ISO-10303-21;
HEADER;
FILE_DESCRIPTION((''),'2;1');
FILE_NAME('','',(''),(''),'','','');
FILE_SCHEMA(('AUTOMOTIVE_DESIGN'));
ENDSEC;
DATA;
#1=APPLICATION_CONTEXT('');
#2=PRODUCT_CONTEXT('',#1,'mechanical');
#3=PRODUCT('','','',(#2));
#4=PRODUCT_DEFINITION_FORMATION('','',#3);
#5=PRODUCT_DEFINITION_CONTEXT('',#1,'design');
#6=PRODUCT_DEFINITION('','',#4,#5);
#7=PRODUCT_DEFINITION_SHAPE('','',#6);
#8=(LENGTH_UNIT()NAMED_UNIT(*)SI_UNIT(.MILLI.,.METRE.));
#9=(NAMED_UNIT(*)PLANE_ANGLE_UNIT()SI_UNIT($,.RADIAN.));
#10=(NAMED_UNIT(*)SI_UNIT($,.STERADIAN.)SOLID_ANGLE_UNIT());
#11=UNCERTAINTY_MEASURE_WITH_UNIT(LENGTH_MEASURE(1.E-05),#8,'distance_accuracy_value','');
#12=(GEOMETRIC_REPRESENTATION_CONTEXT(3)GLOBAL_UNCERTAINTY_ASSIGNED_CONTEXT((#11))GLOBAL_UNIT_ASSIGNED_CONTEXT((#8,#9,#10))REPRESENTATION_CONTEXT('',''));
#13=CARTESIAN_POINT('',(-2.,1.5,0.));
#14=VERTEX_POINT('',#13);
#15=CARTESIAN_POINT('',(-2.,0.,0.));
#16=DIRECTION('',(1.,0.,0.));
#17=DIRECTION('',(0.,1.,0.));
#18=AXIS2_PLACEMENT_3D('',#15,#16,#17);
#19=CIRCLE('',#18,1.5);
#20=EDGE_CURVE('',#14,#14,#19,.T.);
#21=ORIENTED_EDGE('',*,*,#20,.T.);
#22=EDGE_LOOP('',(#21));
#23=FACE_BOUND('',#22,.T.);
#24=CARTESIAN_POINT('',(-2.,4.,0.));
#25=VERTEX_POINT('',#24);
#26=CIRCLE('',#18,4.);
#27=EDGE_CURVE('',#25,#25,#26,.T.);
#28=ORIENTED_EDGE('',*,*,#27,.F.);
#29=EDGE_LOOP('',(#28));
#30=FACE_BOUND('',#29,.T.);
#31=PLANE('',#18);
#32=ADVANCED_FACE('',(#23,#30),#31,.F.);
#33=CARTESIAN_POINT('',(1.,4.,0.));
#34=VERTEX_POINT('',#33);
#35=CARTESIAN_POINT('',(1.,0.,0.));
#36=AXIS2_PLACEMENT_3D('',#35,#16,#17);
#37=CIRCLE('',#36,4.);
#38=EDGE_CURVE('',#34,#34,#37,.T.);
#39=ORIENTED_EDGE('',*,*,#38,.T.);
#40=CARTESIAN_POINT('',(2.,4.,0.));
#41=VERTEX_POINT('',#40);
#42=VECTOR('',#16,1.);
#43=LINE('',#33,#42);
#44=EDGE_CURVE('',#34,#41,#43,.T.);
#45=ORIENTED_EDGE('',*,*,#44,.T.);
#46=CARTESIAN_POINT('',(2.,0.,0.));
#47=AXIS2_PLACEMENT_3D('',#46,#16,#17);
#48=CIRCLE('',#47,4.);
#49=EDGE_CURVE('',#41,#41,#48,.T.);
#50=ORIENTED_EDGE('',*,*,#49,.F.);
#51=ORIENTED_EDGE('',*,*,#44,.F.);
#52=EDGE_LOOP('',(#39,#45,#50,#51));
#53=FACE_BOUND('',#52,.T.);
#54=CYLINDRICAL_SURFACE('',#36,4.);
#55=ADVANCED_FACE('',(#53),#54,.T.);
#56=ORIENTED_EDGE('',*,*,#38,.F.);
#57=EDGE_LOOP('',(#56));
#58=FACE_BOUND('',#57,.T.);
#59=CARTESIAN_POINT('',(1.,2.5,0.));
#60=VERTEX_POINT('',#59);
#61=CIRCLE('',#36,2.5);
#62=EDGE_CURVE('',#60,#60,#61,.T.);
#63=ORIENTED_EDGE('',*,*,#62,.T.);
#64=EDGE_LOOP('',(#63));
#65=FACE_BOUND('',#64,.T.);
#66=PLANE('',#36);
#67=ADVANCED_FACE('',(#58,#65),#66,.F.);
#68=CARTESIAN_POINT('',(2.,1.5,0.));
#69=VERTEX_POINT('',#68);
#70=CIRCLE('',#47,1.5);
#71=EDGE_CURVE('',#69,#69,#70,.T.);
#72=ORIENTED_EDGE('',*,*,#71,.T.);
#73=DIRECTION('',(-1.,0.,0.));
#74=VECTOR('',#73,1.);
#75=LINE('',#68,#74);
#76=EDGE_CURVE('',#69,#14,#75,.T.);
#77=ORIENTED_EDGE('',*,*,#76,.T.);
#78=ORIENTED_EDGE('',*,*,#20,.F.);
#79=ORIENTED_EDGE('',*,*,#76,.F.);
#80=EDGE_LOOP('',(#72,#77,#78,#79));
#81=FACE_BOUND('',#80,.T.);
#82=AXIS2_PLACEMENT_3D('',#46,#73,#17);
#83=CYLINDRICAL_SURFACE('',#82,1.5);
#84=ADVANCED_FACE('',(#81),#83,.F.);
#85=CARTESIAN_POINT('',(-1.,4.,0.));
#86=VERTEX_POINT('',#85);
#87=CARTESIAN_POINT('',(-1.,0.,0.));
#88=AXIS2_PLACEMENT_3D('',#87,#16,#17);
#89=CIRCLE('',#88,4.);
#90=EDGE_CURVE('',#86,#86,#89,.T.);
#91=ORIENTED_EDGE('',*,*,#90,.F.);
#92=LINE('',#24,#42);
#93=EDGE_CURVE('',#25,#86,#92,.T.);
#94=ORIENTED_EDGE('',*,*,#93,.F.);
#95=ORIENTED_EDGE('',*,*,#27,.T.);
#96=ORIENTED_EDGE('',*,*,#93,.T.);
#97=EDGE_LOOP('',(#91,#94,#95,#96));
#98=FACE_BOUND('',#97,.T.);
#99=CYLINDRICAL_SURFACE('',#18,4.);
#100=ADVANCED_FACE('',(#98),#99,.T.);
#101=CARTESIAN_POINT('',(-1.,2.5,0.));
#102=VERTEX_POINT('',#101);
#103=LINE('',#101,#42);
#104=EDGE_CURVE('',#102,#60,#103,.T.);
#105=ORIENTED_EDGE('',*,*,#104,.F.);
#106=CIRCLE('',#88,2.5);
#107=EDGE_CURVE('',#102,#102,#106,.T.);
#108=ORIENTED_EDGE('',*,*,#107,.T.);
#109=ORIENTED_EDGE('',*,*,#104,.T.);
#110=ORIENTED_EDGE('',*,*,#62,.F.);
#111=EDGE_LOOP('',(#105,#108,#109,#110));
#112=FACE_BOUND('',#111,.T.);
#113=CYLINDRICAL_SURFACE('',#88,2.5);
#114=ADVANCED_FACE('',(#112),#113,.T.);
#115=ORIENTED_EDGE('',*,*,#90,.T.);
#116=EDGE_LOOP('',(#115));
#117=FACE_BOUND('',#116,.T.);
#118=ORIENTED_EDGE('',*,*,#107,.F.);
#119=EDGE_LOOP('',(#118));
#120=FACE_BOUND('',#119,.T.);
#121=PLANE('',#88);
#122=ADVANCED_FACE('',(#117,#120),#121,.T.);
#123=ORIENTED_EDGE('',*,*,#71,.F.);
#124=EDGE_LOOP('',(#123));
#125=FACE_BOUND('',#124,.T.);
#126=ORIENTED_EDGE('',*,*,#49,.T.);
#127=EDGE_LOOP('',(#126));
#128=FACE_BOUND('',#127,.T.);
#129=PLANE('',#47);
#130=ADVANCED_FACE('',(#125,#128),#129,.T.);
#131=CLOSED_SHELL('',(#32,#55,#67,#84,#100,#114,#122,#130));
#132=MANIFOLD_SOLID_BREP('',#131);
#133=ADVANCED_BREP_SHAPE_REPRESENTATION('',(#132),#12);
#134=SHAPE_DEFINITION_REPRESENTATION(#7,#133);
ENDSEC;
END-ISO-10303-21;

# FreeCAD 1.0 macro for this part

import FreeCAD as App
import Part
import Sketcher
Q = App.Units.Quantity

doc = App.newDocument("Part")
body = doc.addObject("PartDesign::Body", "Body")

sketch1 = doc.addObject("Sketcher::SketchObject", "Sketch")
body.addObject(sketch1)
sketch1.AttachmentSupport = (doc.XY_Plane, [""])
sketch1.MapMode = "FlatFace"
sketch1.addGeometry(Part.LineSegment(App.Vector(-1, 4, 0), App.Vector(-2, 4, 0)), False)
sketch1.addGeometry(Part.LineSegment(App.Vector(-2, 4, 0), App.Vector(-2, 1.5, 0)), False)
sketch1.addGeometry(Part.LineSegment(App.Vector(-2, 1.5, 0), App.Vector(2, 1.5, 0)), False)
sketch1.addGeometry(Part.LineSegment(App.Vector(2, 1.5, 0), App.Vector(2, 4, 0)), False)
sketch1.addGeometry(Part.LineSegment(App.Vector(2, 4, 0), App.Vector(1, 4, 0)), False)
sketch1.addGeometry(Part.LineSegment(App.Vector(1, 4, 0), App.Vector(1, 2.5, 0)), False)
sketch1.addGeometry(Part.LineSegment(App.Vector(1, 2.5, 0), App.Vector(-1, 2.5, 0)), False)
sketch1.addGeometry(Part.LineSegment(App.Vector(-1, 2.5, 0), App.Vector(-1, 4, 0)), False)
sketch1.addConstraint(Sketcher.Constraint("Coincident", 0, 2, 1, 1))
sketch1.addConstraint(Sketcher.Constraint("Coincident", 1, 2, 2, 1))
sketch1.addConstraint(Sketcher.Constraint("Coincident", 2, 2, 3, 1))
sketch1.addConstraint(Sketcher.Constraint("Coincident", 3, 2, 4, 1))
sketch1.addConstraint(Sketcher.Constraint("Coincident", 4, 2, 5, 1))
sketch1.addConstraint(Sketcher.Constraint("Coincident", 5, 2, 6, 1))
sketch1.addConstraint(Sketcher.Constraint("Coincident", 6, 2, 7, 1))
sketch1.addConstraint(Sketcher.Constraint("Coincident", 7, 2, 0, 1))
sketch1.addConstraint(Sketcher.Constraint("Horizontal", 0))
sketch1.addConstraint(Sketcher.Constraint("Vertical", 1))
sketch1.addConstraint(Sketcher.Constraint("Horizontal", 2))
sketch1.addConstraint(Sketcher.Constraint("Vertical", 3))
sketch1.addConstraint(Sketcher.Constraint("Horizontal", 4))
sketch1.addConstraint(Sketcher.Constraint("Vertical", 5))
sketch1.addConstraint(Sketcher.Constraint("Horizontal", 6))
sketch1.addConstraint(Sketcher.Constraint("Vertical", 7))
sketch1.addConstraint(Sketcher.Constraint("Symmetric", 0, 2, 3, 2, -2))
sketch1.addConstraint(Sketcher.Constraint("Equal", 0, 4))
sketch1.addConstraint(Sketcher.Constraint("DistanceX", 0, 2, 0, 1, Q("1 mm")))
sketch1.addConstraint(Sketcher.Constraint("DistanceX", 6, 2, 6, 1, Q("2 mm")))
sketch1.addConstraint(Sketcher.Constraint("DistanceY", 1, 2, 1, 1, Q("2.5 mm")))
sketch1.addConstraint(Sketcher.Constraint("DistanceY", 5, 2, 5, 1, Q("1.5 mm")))
sketch1.addConstraint(Sketcher.Constraint("DistanceY", -1, 1, 1, 2, Q("1.5 mm")))
revolution = doc.addObject("PartDesign::Revolution", "Revolution")
body.addObject(revolution)
revolution.Profile = sketch1
revolution.ReferenceAxis = (sketch1, ["H_Axis"])
revolution.Angle = 360

doc.recompute()
